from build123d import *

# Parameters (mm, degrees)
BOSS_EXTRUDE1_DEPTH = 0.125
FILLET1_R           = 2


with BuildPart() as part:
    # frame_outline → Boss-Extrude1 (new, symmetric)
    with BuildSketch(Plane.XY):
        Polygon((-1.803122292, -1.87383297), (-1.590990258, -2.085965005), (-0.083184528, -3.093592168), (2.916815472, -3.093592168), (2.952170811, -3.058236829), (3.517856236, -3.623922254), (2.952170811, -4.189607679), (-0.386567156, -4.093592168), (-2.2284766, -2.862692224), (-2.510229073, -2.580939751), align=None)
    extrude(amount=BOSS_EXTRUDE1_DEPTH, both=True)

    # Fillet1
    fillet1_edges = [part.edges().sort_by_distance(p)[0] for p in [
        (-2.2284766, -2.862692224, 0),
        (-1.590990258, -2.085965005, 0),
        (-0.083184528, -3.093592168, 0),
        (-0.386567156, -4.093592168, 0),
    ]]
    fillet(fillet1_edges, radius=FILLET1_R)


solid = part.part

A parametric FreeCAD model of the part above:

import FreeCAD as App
import Part
import Sketcher


def edges_at(feature, points):
    """Names of the edges that pass closest to the given points."""
    edges = feature.Shape.Edges
    near = lambda p: min(range(len(edges)), key=lambda i: edges[i].distToShape(Part.Vertex(*p))[0])
    return sorted({f"Edge{near(p) + 1}" for p in points})

doc = App.newDocument("Part")
body = doc.addObject("PartDesign::Body", "Body")

sketch1 = body.newObject("Sketcher::SketchObject", "Sketch")
sketch1.AttachmentSupport = (doc.getObject("XY_Plane"), [""])
sketch1.MapMode = "FlatFace"
sketch1.addGeometry([
    Part.LineSegment(App.Vector(-1.591, -2.086, 0), App.Vector(-1.803, -1.874, 0)),
    Part.LineSegment(App.Vector(-1.803, -1.874, 0), App.Vector(-2.51, -2.581, 0)),
    Part.LineSegment(App.Vector(-2.51, -2.581, 0), App.Vector(-2.228, -2.863, 0)),
    Part.LineSegment(App.Vector(-2.228, -2.863, 0), App.Vector(-0.387, -4.094, 0)),
    Part.LineSegment(App.Vector(-0.387, -4.094, 0), App.Vector(2.952, -4.19, 0)),
    Part.LineSegment(App.Vector(2.952, -4.19, 0), App.Vector(3.518, -3.624, 0)),
    Part.LineSegment(App.Vector(3.518, -3.624, 0), App.Vector(2.952, -3.058, 0)),
    Part.LineSegment(App.Vector(2.952, -3.058, 0), App.Vector(2.917, -3.094, 0)),
    Part.LineSegment(App.Vector(2.917, -3.094, 0), App.Vector(-0.083, -3.094, 0)),
    Part.LineSegment(App.Vector(-0.083, -3.094, 0), App.Vector(-1.591, -2.086, 0)),
], False)
sketch1.addConstraint([
    Sketcher.Constraint("Coincident", 0, 2, 1, 1),
    Sketcher.Constraint("Coincident", 1, 2, 2, 1),
    Sketcher.Constraint("Coincident", 2, 2, 3, 1),
    Sketcher.Constraint("Coincident", 3, 2, 4, 1),
    Sketcher.Constraint("Coincident", 4, 2, 5, 1),
    Sketcher.Constraint("Coincident", 5, 2, 6, 1),
    Sketcher.Constraint("Coincident", 6, 2, 7, 1),
    Sketcher.Constraint("Coincident", 7, 2, 8, 1),
    Sketcher.Constraint("Coincident", 8, 2, 9, 1),
    Sketcher.Constraint("Coincident", 9, 2, 0, 1),
    Sketcher.Constraint("Horizontal", 8),
    Sketcher.Constraint("Perpendicular", 0, 1),
    Sketcher.Constraint("Perpendicular", 1, 2),
    Sketcher.Constraint("Perpendicular", 2, 5),
    Sketcher.Constraint("Perpendicular", 5, 6),
    Sketcher.Constraint("Perpendicular", 6, 7),
    Sketcher.Constraint("Parallel", 3, 9),
    Sketcher.Constraint("Vertical", 4, 2, 6, 2),
    Sketcher.Constraint("Equal", 5, 6),
    Sketcher.Constraint("DistanceX", 8, 2, 8, 1, 3.0),
    Sketcher.Constraint("Distance", 1, 1.0),
    Sketcher.Constraint("DistanceY", 3, 2, 7, 2, 1.0),
    Sketcher.Constraint("Distance", 0, 0.3),
    Sketcher.Constraint("Distance", 5, 0.8),
    Sketcher.Constraint("Distance", 7, 0.05),
    Sketcher.Constraint("DistanceY", 3, 2, 2, 2, 1.2309),
    Sketcher.Constraint("DistanceX", 1, 2, 4, 2, 5.4624),
    Sketcher.Constraint("Distance", 2, 0.398458),
    Sketcher.Constraint("DistanceX", 1, 2, -1, 1, 2.510229),
    Sketcher.Constraint("DistanceY", 1, 2, -1, 1, 2.58094),
])
pad1 = body.newObject("PartDesign::Pad", "Pad")
pad1.Profile = sketch1
pad1.Length = 0.25
pad1.Midplane = True
doc.recompute()

fillet = body.newObject("PartDesign::Fillet", "Fillet")
fillet.Base = (pad1, edges_at(pad1, [
    (-2.228, -2.863, 0),
    (-1.591, -2.086, 0),
    (-0.083, -3.094, 0),
    (-0.387, -4.094, 0),
]))
fillet.Radius = 2

doc.recompute()
